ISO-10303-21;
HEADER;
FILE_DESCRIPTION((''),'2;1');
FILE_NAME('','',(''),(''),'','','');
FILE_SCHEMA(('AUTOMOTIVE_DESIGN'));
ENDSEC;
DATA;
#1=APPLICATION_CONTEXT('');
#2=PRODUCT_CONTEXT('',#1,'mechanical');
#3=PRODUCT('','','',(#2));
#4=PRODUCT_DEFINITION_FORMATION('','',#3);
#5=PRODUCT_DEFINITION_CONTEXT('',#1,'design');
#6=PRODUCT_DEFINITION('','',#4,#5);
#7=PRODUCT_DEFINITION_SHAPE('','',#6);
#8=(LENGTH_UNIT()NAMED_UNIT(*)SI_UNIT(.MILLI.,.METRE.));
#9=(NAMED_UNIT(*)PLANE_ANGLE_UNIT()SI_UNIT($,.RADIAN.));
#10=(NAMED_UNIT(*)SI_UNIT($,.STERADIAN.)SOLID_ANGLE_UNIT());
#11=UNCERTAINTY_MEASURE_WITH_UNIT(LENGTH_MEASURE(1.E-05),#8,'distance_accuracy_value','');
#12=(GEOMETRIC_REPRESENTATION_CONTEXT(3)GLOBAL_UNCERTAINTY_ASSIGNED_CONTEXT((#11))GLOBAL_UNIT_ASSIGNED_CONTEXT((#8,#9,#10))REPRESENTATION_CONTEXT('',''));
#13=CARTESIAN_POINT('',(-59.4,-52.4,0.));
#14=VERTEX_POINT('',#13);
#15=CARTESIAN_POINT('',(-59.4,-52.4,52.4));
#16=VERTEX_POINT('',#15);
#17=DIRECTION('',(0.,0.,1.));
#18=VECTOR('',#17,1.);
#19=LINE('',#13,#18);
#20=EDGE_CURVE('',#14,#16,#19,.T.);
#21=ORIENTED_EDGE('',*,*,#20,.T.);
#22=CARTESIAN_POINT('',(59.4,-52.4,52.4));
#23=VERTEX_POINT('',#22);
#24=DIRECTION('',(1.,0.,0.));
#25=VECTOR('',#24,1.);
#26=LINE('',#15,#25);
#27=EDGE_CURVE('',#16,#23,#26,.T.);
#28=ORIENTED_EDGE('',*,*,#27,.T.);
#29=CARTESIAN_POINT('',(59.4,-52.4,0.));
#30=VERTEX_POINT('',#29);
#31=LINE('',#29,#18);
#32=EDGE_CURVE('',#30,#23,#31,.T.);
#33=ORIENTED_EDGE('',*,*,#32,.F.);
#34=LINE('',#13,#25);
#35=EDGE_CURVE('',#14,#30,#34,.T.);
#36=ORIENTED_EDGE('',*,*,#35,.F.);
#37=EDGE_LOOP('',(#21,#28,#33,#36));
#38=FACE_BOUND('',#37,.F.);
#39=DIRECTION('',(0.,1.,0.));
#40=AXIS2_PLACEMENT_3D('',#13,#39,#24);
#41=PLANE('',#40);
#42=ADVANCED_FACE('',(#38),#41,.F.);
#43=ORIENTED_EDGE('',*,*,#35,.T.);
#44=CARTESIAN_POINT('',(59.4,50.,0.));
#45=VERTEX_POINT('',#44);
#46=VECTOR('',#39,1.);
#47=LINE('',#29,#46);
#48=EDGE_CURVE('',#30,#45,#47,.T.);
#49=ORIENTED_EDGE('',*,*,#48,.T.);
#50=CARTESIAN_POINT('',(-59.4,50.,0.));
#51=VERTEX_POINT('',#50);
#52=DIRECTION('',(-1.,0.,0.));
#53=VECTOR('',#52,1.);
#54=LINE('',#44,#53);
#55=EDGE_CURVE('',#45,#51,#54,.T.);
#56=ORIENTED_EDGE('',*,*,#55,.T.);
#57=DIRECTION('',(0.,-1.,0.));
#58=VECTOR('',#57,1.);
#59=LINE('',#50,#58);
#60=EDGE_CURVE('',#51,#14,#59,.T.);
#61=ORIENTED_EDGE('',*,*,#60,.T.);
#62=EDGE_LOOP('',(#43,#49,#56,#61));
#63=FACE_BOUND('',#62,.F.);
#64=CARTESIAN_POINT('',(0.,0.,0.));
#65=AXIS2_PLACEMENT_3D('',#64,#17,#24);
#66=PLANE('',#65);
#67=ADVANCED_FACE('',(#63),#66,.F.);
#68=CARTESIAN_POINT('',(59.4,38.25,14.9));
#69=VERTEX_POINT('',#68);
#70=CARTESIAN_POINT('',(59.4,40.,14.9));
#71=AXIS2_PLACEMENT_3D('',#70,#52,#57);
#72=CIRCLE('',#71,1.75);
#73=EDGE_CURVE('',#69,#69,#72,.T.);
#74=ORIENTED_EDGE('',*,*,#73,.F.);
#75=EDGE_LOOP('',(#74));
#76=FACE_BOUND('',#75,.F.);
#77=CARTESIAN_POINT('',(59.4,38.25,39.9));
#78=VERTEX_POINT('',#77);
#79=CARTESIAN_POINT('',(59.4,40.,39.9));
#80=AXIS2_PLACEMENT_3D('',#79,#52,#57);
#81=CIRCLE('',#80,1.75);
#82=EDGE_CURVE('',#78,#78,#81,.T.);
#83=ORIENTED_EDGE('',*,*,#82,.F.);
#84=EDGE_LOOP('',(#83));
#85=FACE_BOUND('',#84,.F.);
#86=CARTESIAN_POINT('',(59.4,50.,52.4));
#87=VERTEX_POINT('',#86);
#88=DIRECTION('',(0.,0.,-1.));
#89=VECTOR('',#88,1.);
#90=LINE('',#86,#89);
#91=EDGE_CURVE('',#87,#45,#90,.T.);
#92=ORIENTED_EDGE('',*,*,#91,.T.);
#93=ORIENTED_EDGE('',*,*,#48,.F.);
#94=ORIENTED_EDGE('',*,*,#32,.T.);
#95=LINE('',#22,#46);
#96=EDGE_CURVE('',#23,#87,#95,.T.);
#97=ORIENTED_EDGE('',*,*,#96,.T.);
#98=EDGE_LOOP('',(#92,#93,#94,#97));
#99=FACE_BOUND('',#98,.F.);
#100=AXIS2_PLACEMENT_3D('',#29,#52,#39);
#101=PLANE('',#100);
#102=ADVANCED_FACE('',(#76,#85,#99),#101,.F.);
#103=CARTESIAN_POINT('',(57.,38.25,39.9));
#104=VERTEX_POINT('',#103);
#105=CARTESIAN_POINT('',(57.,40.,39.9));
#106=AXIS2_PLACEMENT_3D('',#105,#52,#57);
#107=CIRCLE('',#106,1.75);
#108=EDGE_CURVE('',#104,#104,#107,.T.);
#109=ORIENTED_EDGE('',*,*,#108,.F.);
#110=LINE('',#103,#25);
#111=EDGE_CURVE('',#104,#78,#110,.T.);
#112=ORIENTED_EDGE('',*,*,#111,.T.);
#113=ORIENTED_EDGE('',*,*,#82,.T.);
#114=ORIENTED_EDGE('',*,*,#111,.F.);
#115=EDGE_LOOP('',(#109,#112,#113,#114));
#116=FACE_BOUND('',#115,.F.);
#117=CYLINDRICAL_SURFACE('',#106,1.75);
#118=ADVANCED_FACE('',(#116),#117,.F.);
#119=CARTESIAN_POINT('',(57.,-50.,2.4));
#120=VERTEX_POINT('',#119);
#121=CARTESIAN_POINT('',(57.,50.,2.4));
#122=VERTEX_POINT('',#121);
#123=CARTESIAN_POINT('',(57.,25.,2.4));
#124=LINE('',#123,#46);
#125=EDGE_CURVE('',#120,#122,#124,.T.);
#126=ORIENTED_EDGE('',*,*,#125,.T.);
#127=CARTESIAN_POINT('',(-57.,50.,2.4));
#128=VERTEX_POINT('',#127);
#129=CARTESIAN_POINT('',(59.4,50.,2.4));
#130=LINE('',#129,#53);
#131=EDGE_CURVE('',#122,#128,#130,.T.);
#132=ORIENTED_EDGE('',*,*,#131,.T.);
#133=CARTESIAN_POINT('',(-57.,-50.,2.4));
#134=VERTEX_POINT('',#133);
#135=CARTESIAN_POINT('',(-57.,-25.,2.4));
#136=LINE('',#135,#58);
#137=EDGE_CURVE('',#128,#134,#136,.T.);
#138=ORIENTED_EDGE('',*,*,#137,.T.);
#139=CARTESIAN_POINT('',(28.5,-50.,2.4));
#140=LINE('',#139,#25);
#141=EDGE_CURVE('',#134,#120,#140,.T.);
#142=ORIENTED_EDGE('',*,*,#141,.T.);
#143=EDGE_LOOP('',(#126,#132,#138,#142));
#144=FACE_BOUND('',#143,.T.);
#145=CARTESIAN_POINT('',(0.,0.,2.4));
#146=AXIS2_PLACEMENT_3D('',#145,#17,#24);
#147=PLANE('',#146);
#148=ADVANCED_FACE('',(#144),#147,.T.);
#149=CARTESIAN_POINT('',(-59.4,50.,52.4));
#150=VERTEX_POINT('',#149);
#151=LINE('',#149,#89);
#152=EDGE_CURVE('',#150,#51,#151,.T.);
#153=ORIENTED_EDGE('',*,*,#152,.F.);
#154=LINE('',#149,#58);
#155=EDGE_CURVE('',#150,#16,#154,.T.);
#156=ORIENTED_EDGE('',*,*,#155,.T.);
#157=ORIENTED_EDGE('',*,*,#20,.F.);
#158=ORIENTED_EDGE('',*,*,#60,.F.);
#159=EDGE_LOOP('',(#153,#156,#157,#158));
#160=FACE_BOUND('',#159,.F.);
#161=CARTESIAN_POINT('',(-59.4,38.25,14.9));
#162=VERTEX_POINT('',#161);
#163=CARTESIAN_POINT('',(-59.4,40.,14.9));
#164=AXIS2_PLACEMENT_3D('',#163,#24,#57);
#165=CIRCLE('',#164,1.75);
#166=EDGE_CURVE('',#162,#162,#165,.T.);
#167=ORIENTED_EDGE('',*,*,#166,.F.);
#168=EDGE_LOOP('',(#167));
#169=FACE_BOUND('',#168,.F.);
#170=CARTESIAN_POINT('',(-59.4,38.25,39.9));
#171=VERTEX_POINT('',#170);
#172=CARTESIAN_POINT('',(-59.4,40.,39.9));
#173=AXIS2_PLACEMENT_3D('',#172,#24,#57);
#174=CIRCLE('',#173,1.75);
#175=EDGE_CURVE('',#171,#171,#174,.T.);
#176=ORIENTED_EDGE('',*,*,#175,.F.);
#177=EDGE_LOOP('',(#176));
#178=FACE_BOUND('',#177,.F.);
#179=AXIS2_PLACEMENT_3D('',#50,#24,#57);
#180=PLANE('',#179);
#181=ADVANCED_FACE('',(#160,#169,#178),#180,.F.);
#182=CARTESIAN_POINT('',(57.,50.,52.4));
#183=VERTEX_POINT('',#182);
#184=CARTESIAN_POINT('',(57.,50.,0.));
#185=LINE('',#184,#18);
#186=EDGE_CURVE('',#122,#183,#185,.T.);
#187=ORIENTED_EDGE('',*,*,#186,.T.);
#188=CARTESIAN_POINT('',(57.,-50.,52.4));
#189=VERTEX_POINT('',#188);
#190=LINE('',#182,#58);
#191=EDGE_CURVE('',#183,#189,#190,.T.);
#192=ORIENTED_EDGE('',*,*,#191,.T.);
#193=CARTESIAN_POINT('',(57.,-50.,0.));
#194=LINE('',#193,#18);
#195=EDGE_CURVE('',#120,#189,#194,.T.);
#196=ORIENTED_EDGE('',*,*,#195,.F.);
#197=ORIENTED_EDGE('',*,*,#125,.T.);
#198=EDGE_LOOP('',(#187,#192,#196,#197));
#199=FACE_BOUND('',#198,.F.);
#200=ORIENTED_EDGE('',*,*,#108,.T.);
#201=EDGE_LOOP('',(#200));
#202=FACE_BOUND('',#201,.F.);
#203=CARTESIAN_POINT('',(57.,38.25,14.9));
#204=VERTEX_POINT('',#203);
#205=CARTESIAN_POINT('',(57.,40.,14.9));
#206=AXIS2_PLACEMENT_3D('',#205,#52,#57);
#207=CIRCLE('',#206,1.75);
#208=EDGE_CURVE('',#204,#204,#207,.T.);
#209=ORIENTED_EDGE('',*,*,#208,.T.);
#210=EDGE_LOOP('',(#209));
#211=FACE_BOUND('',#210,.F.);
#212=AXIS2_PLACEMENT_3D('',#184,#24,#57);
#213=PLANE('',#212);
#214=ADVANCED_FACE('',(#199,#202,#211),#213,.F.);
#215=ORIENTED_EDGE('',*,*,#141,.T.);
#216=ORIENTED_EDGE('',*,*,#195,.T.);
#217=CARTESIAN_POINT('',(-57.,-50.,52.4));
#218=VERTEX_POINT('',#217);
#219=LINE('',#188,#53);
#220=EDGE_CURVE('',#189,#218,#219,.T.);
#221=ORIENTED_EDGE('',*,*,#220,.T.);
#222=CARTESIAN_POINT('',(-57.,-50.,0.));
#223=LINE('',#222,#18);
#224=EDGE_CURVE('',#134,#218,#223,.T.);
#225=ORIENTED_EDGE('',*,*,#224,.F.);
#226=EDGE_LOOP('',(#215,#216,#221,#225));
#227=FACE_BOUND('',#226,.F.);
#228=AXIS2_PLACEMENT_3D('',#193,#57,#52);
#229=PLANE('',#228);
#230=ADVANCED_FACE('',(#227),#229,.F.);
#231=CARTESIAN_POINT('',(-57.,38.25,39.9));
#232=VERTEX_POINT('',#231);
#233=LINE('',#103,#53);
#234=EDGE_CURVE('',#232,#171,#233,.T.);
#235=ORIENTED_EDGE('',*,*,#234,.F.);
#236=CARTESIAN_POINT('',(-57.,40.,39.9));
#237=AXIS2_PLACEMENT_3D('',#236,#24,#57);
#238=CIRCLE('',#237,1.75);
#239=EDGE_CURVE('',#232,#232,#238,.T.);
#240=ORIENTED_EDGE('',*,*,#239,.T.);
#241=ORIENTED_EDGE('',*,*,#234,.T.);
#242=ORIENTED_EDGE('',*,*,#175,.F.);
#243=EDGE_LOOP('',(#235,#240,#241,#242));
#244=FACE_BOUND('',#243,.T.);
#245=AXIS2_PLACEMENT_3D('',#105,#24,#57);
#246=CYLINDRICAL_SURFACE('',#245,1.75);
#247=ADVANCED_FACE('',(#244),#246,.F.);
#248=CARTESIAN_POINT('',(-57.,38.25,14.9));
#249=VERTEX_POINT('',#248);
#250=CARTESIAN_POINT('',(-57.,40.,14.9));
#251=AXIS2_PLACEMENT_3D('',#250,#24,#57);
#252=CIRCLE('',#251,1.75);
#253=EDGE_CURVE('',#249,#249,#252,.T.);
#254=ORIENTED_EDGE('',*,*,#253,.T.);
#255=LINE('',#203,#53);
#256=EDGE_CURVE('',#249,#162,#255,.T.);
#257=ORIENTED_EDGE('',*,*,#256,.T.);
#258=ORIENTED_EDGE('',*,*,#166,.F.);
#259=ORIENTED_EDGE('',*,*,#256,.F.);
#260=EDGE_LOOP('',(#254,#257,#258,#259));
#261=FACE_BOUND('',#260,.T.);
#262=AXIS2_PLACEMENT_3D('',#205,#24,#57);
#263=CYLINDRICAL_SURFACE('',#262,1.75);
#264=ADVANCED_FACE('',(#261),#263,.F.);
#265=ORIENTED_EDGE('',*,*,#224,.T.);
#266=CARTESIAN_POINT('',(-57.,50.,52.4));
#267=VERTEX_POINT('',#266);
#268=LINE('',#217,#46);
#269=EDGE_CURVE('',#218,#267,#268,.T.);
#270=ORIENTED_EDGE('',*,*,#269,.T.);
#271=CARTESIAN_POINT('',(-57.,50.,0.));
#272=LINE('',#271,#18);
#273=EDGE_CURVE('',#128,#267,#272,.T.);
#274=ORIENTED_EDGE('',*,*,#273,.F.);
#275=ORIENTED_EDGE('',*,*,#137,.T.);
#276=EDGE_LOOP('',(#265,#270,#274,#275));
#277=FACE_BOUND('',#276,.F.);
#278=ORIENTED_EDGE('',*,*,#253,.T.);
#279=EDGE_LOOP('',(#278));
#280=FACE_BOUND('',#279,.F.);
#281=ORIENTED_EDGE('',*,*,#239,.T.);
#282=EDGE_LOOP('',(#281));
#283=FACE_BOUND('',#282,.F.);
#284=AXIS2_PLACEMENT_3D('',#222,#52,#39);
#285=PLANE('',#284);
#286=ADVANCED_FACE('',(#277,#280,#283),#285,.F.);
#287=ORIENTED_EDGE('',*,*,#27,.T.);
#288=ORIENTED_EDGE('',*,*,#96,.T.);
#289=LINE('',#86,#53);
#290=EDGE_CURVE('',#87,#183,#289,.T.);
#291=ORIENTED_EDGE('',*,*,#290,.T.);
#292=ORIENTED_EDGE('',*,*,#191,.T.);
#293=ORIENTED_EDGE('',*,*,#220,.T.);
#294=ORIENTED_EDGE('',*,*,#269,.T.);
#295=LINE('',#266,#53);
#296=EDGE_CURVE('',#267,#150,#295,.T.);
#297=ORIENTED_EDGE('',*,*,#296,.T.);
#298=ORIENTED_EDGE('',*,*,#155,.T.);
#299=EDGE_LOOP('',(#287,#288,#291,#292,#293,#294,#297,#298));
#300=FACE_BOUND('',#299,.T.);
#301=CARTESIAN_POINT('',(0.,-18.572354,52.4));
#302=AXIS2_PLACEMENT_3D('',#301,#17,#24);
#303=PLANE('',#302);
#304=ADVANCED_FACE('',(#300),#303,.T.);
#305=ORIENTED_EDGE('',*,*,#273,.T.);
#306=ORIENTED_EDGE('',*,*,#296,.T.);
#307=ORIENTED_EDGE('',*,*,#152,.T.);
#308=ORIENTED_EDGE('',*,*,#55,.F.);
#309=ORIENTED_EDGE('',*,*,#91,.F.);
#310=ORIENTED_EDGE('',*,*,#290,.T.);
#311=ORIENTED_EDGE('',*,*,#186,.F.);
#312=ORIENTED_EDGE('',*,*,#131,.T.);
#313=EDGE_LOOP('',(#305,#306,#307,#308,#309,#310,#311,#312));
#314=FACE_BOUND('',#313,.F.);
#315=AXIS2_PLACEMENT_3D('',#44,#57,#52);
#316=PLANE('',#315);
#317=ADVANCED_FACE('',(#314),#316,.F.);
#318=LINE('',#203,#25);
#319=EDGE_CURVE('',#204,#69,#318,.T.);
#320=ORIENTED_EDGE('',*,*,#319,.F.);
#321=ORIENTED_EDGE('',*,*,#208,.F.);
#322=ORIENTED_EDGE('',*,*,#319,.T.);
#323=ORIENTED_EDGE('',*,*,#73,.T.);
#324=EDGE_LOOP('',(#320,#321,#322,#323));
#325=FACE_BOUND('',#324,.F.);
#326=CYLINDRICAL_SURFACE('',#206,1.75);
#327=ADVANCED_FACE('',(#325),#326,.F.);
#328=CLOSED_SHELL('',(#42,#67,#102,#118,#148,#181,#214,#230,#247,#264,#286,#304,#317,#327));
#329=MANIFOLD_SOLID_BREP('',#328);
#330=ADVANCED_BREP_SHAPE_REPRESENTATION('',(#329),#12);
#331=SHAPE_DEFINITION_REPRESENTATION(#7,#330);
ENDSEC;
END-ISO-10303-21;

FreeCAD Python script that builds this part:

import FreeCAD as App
import Part
import Sketcher

V = App.Vector


def add_polygon(sketch, points):
    """Adds a closed chain of lines whose ends are joined by coincident constraints."""
    first, n = sketch.GeometryCount, len(points)
    for a, b in zip(points, points[1:] + points[:1]):
        sketch.addGeometry(Part.LineSegment(App.Vector(*a, 0), App.Vector(*b, 0)), False)
    for i in range(n):
        sketch.addConstraint(Sketcher.Constraint("Coincident", first + i, 2, first + (i + 1) % n, 1))

doc = App.newDocument("Part")
body = doc.addObject("PartDesign::Body", "Body")

# Sketch on XY plane
sketch1 = body.newObject("Sketcher::SketchObject", "Sketch")
sketch1.AttachmentSupport = (doc.getObject("XY_Plane"), [""])
sketch1.MapMode = "FlatFace"
add_polygon(sketch1, [(-59, 50), (-59, -52), (59, -52), (59, 50)])  # lines 0-3
sketch1.addConstraint(Sketcher.Constraint("Vertical", 0))
sketch1.addConstraint(Sketcher.Constraint("Horizontal", 1))
sketch1.addConstraint(Sketcher.Constraint("Vertical", 2))
sketch1.addConstraint(Sketcher.Constraint("Horizontal", 3))
sketch1.addConstraint(Sketcher.Constraint("DistanceX", 1, 1, 1, 2, 118.8))
sketch1.addConstraint(Sketcher.Constraint("DistanceY", 0, 2, 0, 1, 102.4))
sketch1.addConstraint(Sketcher.Constraint("DistanceY", -1, 1, 2, 2, 50.0))
sketch1.addConstraint(Sketcher.Constraint("DistanceX", 0, 2, -1, 1, 59.4))
pad1 = body.newObject("PartDesign::Pad", "Pad")
pad1.Profile = sketch1
pad1.Length = 2.4

# Sketch on XY plane
sketch2 = body.newObject("Sketcher::SketchObject", "Sketch001")
sketch2.AttachmentSupport = (doc.getObject("XY_Plane"), [""])
sketch2.MapMode = "FlatFace"
add_polygon(sketch2, [(-57, -50), (-57, 50), (-59.4, 50), (-59.4, -52.4), (59.4, -52.4), (59.4, 50), (57, 50), (57, -50)])  # lines 0-7
sketch2.addConstraint(Sketcher.Constraint("Vertical", 0))
sketch2.addConstraint(Sketcher.Constraint("Horizontal", 1))
sketch2.addConstraint(Sketcher.Constraint("Vertical", 2))
sketch2.addConstraint(Sketcher.Constraint("Horizontal", 3))
sketch2.addConstraint(Sketcher.Constraint("Vertical", 4))
sketch2.addConstraint(Sketcher.Constraint("Horizontal", 5))
sketch2.addConstraint(Sketcher.Constraint("Vertical", 6))
sketch2.addConstraint(Sketcher.Constraint("Horizontal", 7))
sketch2.addConstraint(Sketcher.Constraint("Symmetric", 0, 2, 6, 2, -1, 1))
sketch2.addConstraint(Sketcher.Constraint("Symmetric", 1, 2, 4, 2, -2))
sketch2.addConstraint(Sketcher.Constraint("DistanceX", 7, 2, 7, 1, 114.0))
sketch2.addConstraint(Sketcher.Constraint("DistanceY", 0, 1, 0, 2, 100.0))
sketch2.addConstraint(Sketcher.Constraint("DistanceX", 1, 2, 1, 1, 2.4))
sketch2.addConstraint(Sketcher.Constraint("DistanceY", 2, 2, 2, 1, 102.4))
pad2 = body.newObject("PartDesign::Pad", "Pad001")
pad2.Profile = sketch2
pad2.Length = 52.4

# Sketch on YZ plane
sketch3 = body.newObject("Sketcher::SketchObject", "Sketch002")
sketch3.AttachmentSupport = (doc.getObject("YZ_Plane"), [""])
sketch3.MapMode = "FlatFace"
sketch3.AttachmentOffset = App.Placement(V(0, 0, 57), App.Rotation())
sketch3.addGeometry(Part.Circle(V(40, 39.9, 0), V(0, 0, 1), 1.8), False)
sketch3.addGeometry(Part.Circle(V(40, 14.9, 0), V(0, 0, 1), 1.8), False)
sketch3.addConstraint(Sketcher.Constraint("Equal", 0, 1))
sketch3.addConstraint(Sketcher.Constraint("Vertical", 0, 3, 1, 3))
sketch3.addConstraint(Sketcher.Constraint("Diameter", 0, 3.5))
sketch3.addConstraint(Sketcher.Constraint("DistanceX", -1, 1, 0, 3, 40.0))
sketch3.addConstraint(Sketcher.Constraint("DistanceY", 1, 3, 0, 3, 25.0))
sketch3.addConstraint(Sketcher.Constraint("DistanceY", -1, 1, 0, 3, 39.9))
pocket1 = body.newObject("PartDesign::Pocket", "Pocket")
pocket1.Profile = sketch3
pocket1.Type = "ThroughAll"
pocket1.Reversed = True

# Sketch on YZ plane
sketch4 = body.newObject("Sketcher::SketchObject", "Sketch003")
sketch4.AttachmentSupport = (doc.getObject("YZ_Plane"), [""])
sketch4.MapMode = "FlatFace"
sketch4.AttachmentOffset = App.Placement(V(0, 0, 57), App.Rotation())
sketch4.addGeometry(Part.Circle(V(40, 39.9, 0), V(0, 0, 1), 1.8), False)
sketch4.addGeometry(Part.Circle(V(40, 14.9, 0), V(0, 0, 1), 1.8), False)
sketch4.addConstraint(Sketcher.Constraint("Equal", 0, 1))
sketch4.addConstraint(Sketcher.Constraint("Vertical", 0, 3, 1, 3))
sketch4.addConstraint(Sketcher.Constraint("Diameter", 0, 3.5))
sketch4.addConstraint(Sketcher.Constraint("DistanceX", -1, 1, 0, 3, 40.0))
sketch4.addConstraint(Sketcher.Constraint("DistanceY", 1, 3, 0, 3, 25.0))
sketch4.addConstraint(Sketcher.Constraint("DistanceY", -1, 1, 0, 3, 39.9))
pocket2 = body.newObject("PartDesign::Pocket", "Pocket001")
pocket2.Profile = sketch4
pocket2.Type = "ThroughAll"

doc.recompute()
